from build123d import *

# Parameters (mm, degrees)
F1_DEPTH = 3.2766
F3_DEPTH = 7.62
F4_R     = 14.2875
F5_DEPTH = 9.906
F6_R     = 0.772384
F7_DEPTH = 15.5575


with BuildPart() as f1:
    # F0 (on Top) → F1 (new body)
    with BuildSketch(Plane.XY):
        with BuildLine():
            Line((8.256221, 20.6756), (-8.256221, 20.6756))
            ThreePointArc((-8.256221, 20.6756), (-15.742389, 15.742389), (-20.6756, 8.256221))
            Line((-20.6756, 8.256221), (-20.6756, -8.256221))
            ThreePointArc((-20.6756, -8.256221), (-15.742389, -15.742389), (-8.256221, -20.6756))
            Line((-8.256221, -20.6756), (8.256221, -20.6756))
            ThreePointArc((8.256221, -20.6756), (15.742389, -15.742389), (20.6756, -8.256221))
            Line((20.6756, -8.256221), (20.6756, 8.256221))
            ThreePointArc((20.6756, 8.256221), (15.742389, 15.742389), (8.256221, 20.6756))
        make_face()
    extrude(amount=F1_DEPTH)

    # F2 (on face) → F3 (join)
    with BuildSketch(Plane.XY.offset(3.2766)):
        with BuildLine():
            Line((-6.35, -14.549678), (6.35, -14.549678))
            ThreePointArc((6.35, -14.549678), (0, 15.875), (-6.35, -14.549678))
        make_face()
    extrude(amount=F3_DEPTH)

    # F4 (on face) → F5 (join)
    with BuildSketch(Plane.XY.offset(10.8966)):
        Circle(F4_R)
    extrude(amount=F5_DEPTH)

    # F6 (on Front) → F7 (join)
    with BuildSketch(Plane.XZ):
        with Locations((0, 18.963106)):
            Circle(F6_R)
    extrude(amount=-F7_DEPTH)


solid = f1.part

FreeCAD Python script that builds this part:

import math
import FreeCAD as App
import Part
import Sketcher

V = App.Vector
Q = App.Units.Quantity

doc = App.newDocument("Part")
body = doc.addObject("PartDesign::Body", "Body")

sketch1 = body.newObject("Sketcher::SketchObject", "Sketch")
sketch1.AttachmentSupport = (doc.getObject("XY_Plane"), [""])
sketch1.MapMode = "FlatFace"
sketch1.addGeometry([
    Part.LineSegment(V(8, 21, 0), V(-8, 21, 0)),
    Part.ArcOfCircle(Part.Circle(V(0, 0, 0), V(0, 0, 1), 22), math.radians(112), math.radians(158)),
    Part.LineSegment(V(-21, 8, 0), V(-21, -8, 0)),
    Part.ArcOfCircle(Part.Circle(V(0, 0, 0), V(0, 0, 1), 22), math.radians(-158), math.radians(-112)),
    Part.LineSegment(V(-8, -21, 0), V(8, -21, 0)),
    Part.ArcOfCircle(Part.Circle(V(0, 0, 0), V(0, 0, 1), 22), math.radians(-68), math.radians(-22)),
    Part.LineSegment(V(21, -8, 0), V(21, 8, 0)),
    Part.ArcOfCircle(Part.Circle(V(0, 0, 0), V(0, 0, 1), 22), math.radians(22), math.radians(68)),
], False)
sketch1.addConstraint([
    Sketcher.Constraint("Coincident", 0, 2, 1, 1),
    Sketcher.Constraint("Coincident", 1, 2, 2, 1),
    Sketcher.Constraint("Coincident", 2, 2, 3, 1),
    Sketcher.Constraint("Coincident", 3, 2, 4, 1),
    Sketcher.Constraint("Coincident", 4, 2, 5, 1),
    Sketcher.Constraint("Coincident", 5, 2, 6, 1),
    Sketcher.Constraint("Coincident", 6, 2, 7, 1),
    Sketcher.Constraint("Coincident", 7, 2, 0, 1),
    Sketcher.Constraint("Horizontal", 0),
    Sketcher.Constraint("Vertical", 2),
    Sketcher.Constraint("Horizontal", 4),
    Sketcher.Constraint("Vertical", 6),
    Sketcher.Constraint("Coincident", 1, 3, -1, 1),
    Sketcher.Constraint("Coincident", 3, 3, -1, 1),
    Sketcher.Constraint("Coincident", 5, 3, -1, 1),
    Sketcher.Constraint("Coincident", 7, 3, -1, 1),
    Sketcher.Constraint("Equal", 1, 3),
    Sketcher.Constraint("Equal", 3, 5),
    Sketcher.Constraint("Equal", 5, 7),
    Sketcher.Constraint("Horizontal", 2, 2, 5, 2),
    Sketcher.Constraint("Vertical", 0, 2, 3, 2),
    Sketcher.Constraint("Equal", 4, 2),
    Sketcher.Constraint("Radius", 1, Q("0.8765 in")),
    Sketcher.Constraint("DistanceY", -1, 1, 0, 2, Q("0.814 in")),
])
pad1 = body.newObject("PartDesign::Pad", "Pad")
pad1.Profile = sketch1
pad1.Length = Q("0.129 in")

sketch2 = body.newObject("Sketcher::SketchObject", "Sketch001")
sketch2.AttachmentSupport = (doc.getObject("XY_Plane"), [""])
sketch2.MapMode = "FlatFace"
sketch2.AttachmentOffset = App.Placement(V(0, 0, 0.129 * 25.4), App.Rotation())
sketch2.addGeometry([
    Part.LineSegment(V(-6, -15, 0), V(6, -15, 0)),
    Part.ArcOfCircle(Part.Circle(V(0, 0, 0), V(0, 0, 1), 16), math.radians(-66), math.radians(246)),
], False)
sketch2.addConstraint([
    Sketcher.Constraint("Coincident", 0, 1, 1, 2),
    Sketcher.Constraint("Coincident", 1, 1, 0, 2),
    Sketcher.Constraint("Horizontal", 0),
    Sketcher.Constraint("Coincident", 1, 3, -1, 1),
    Sketcher.Constraint("DistanceX", 0, 1, 0, 2, Q("0.5 in")),
    Sketcher.Constraint("Radius", 1, Q("0.625 in")),
])
pad2 = body.newObject("PartDesign::Pad", "Pad001")
pad2.Profile = sketch2
pad2.Length = Q("0.3 in")

sketch3 = body.newObject("Sketcher::SketchObject", "Sketch002")
sketch3.AttachmentSupport = (doc.getObject("XY_Plane"), [""])
sketch3.MapMode = "FlatFace"
sketch3.AttachmentOffset = App.Placement(V(0, 0, 0.429 * 25.4), App.Rotation())
sketch3.addGeometry(Part.Circle(V(0, 0, 0), V(0, 0, 1), 14), False)
sketch3.addConstraint([
    Sketcher.Constraint("Coincident", 0, 3, -1, 1),
    Sketcher.Constraint("Diameter", 0, Q("1.125 in")),
])
pad3 = body.newObject("PartDesign::Pad", "Pad002")
pad3.Profile = sketch3
pad3.Length = Q("0.39 in")

sketch4 = body.newObject("Sketcher::SketchObject", "Sketch003")
sketch4.AttachmentSupport = (doc.getObject("XZ_Plane"), [""])
sketch4.MapMode = "FlatFace"
sketch4.addGeometry(Part.Circle(V(0, 19, 0), V(0, 0, 1), 0.8), False)
sketch4.addConstraint([
    Sketcher.Constraint("PointOnObject", 0, 3, -2),
    Sketcher.Constraint("Diameter", 0, Q("1.544768 mm")),
    Sketcher.Constraint("DistanceY", -1, 1, 0, 3, Q("18.963106 mm")),
])
pad4 = body.newObject("PartDesign::Pad", "Pad003")
pad4.Profile = sketch4
pad4.Length = Q("0.6125 in")
pad4.Reversed = True

doc.recompute()
